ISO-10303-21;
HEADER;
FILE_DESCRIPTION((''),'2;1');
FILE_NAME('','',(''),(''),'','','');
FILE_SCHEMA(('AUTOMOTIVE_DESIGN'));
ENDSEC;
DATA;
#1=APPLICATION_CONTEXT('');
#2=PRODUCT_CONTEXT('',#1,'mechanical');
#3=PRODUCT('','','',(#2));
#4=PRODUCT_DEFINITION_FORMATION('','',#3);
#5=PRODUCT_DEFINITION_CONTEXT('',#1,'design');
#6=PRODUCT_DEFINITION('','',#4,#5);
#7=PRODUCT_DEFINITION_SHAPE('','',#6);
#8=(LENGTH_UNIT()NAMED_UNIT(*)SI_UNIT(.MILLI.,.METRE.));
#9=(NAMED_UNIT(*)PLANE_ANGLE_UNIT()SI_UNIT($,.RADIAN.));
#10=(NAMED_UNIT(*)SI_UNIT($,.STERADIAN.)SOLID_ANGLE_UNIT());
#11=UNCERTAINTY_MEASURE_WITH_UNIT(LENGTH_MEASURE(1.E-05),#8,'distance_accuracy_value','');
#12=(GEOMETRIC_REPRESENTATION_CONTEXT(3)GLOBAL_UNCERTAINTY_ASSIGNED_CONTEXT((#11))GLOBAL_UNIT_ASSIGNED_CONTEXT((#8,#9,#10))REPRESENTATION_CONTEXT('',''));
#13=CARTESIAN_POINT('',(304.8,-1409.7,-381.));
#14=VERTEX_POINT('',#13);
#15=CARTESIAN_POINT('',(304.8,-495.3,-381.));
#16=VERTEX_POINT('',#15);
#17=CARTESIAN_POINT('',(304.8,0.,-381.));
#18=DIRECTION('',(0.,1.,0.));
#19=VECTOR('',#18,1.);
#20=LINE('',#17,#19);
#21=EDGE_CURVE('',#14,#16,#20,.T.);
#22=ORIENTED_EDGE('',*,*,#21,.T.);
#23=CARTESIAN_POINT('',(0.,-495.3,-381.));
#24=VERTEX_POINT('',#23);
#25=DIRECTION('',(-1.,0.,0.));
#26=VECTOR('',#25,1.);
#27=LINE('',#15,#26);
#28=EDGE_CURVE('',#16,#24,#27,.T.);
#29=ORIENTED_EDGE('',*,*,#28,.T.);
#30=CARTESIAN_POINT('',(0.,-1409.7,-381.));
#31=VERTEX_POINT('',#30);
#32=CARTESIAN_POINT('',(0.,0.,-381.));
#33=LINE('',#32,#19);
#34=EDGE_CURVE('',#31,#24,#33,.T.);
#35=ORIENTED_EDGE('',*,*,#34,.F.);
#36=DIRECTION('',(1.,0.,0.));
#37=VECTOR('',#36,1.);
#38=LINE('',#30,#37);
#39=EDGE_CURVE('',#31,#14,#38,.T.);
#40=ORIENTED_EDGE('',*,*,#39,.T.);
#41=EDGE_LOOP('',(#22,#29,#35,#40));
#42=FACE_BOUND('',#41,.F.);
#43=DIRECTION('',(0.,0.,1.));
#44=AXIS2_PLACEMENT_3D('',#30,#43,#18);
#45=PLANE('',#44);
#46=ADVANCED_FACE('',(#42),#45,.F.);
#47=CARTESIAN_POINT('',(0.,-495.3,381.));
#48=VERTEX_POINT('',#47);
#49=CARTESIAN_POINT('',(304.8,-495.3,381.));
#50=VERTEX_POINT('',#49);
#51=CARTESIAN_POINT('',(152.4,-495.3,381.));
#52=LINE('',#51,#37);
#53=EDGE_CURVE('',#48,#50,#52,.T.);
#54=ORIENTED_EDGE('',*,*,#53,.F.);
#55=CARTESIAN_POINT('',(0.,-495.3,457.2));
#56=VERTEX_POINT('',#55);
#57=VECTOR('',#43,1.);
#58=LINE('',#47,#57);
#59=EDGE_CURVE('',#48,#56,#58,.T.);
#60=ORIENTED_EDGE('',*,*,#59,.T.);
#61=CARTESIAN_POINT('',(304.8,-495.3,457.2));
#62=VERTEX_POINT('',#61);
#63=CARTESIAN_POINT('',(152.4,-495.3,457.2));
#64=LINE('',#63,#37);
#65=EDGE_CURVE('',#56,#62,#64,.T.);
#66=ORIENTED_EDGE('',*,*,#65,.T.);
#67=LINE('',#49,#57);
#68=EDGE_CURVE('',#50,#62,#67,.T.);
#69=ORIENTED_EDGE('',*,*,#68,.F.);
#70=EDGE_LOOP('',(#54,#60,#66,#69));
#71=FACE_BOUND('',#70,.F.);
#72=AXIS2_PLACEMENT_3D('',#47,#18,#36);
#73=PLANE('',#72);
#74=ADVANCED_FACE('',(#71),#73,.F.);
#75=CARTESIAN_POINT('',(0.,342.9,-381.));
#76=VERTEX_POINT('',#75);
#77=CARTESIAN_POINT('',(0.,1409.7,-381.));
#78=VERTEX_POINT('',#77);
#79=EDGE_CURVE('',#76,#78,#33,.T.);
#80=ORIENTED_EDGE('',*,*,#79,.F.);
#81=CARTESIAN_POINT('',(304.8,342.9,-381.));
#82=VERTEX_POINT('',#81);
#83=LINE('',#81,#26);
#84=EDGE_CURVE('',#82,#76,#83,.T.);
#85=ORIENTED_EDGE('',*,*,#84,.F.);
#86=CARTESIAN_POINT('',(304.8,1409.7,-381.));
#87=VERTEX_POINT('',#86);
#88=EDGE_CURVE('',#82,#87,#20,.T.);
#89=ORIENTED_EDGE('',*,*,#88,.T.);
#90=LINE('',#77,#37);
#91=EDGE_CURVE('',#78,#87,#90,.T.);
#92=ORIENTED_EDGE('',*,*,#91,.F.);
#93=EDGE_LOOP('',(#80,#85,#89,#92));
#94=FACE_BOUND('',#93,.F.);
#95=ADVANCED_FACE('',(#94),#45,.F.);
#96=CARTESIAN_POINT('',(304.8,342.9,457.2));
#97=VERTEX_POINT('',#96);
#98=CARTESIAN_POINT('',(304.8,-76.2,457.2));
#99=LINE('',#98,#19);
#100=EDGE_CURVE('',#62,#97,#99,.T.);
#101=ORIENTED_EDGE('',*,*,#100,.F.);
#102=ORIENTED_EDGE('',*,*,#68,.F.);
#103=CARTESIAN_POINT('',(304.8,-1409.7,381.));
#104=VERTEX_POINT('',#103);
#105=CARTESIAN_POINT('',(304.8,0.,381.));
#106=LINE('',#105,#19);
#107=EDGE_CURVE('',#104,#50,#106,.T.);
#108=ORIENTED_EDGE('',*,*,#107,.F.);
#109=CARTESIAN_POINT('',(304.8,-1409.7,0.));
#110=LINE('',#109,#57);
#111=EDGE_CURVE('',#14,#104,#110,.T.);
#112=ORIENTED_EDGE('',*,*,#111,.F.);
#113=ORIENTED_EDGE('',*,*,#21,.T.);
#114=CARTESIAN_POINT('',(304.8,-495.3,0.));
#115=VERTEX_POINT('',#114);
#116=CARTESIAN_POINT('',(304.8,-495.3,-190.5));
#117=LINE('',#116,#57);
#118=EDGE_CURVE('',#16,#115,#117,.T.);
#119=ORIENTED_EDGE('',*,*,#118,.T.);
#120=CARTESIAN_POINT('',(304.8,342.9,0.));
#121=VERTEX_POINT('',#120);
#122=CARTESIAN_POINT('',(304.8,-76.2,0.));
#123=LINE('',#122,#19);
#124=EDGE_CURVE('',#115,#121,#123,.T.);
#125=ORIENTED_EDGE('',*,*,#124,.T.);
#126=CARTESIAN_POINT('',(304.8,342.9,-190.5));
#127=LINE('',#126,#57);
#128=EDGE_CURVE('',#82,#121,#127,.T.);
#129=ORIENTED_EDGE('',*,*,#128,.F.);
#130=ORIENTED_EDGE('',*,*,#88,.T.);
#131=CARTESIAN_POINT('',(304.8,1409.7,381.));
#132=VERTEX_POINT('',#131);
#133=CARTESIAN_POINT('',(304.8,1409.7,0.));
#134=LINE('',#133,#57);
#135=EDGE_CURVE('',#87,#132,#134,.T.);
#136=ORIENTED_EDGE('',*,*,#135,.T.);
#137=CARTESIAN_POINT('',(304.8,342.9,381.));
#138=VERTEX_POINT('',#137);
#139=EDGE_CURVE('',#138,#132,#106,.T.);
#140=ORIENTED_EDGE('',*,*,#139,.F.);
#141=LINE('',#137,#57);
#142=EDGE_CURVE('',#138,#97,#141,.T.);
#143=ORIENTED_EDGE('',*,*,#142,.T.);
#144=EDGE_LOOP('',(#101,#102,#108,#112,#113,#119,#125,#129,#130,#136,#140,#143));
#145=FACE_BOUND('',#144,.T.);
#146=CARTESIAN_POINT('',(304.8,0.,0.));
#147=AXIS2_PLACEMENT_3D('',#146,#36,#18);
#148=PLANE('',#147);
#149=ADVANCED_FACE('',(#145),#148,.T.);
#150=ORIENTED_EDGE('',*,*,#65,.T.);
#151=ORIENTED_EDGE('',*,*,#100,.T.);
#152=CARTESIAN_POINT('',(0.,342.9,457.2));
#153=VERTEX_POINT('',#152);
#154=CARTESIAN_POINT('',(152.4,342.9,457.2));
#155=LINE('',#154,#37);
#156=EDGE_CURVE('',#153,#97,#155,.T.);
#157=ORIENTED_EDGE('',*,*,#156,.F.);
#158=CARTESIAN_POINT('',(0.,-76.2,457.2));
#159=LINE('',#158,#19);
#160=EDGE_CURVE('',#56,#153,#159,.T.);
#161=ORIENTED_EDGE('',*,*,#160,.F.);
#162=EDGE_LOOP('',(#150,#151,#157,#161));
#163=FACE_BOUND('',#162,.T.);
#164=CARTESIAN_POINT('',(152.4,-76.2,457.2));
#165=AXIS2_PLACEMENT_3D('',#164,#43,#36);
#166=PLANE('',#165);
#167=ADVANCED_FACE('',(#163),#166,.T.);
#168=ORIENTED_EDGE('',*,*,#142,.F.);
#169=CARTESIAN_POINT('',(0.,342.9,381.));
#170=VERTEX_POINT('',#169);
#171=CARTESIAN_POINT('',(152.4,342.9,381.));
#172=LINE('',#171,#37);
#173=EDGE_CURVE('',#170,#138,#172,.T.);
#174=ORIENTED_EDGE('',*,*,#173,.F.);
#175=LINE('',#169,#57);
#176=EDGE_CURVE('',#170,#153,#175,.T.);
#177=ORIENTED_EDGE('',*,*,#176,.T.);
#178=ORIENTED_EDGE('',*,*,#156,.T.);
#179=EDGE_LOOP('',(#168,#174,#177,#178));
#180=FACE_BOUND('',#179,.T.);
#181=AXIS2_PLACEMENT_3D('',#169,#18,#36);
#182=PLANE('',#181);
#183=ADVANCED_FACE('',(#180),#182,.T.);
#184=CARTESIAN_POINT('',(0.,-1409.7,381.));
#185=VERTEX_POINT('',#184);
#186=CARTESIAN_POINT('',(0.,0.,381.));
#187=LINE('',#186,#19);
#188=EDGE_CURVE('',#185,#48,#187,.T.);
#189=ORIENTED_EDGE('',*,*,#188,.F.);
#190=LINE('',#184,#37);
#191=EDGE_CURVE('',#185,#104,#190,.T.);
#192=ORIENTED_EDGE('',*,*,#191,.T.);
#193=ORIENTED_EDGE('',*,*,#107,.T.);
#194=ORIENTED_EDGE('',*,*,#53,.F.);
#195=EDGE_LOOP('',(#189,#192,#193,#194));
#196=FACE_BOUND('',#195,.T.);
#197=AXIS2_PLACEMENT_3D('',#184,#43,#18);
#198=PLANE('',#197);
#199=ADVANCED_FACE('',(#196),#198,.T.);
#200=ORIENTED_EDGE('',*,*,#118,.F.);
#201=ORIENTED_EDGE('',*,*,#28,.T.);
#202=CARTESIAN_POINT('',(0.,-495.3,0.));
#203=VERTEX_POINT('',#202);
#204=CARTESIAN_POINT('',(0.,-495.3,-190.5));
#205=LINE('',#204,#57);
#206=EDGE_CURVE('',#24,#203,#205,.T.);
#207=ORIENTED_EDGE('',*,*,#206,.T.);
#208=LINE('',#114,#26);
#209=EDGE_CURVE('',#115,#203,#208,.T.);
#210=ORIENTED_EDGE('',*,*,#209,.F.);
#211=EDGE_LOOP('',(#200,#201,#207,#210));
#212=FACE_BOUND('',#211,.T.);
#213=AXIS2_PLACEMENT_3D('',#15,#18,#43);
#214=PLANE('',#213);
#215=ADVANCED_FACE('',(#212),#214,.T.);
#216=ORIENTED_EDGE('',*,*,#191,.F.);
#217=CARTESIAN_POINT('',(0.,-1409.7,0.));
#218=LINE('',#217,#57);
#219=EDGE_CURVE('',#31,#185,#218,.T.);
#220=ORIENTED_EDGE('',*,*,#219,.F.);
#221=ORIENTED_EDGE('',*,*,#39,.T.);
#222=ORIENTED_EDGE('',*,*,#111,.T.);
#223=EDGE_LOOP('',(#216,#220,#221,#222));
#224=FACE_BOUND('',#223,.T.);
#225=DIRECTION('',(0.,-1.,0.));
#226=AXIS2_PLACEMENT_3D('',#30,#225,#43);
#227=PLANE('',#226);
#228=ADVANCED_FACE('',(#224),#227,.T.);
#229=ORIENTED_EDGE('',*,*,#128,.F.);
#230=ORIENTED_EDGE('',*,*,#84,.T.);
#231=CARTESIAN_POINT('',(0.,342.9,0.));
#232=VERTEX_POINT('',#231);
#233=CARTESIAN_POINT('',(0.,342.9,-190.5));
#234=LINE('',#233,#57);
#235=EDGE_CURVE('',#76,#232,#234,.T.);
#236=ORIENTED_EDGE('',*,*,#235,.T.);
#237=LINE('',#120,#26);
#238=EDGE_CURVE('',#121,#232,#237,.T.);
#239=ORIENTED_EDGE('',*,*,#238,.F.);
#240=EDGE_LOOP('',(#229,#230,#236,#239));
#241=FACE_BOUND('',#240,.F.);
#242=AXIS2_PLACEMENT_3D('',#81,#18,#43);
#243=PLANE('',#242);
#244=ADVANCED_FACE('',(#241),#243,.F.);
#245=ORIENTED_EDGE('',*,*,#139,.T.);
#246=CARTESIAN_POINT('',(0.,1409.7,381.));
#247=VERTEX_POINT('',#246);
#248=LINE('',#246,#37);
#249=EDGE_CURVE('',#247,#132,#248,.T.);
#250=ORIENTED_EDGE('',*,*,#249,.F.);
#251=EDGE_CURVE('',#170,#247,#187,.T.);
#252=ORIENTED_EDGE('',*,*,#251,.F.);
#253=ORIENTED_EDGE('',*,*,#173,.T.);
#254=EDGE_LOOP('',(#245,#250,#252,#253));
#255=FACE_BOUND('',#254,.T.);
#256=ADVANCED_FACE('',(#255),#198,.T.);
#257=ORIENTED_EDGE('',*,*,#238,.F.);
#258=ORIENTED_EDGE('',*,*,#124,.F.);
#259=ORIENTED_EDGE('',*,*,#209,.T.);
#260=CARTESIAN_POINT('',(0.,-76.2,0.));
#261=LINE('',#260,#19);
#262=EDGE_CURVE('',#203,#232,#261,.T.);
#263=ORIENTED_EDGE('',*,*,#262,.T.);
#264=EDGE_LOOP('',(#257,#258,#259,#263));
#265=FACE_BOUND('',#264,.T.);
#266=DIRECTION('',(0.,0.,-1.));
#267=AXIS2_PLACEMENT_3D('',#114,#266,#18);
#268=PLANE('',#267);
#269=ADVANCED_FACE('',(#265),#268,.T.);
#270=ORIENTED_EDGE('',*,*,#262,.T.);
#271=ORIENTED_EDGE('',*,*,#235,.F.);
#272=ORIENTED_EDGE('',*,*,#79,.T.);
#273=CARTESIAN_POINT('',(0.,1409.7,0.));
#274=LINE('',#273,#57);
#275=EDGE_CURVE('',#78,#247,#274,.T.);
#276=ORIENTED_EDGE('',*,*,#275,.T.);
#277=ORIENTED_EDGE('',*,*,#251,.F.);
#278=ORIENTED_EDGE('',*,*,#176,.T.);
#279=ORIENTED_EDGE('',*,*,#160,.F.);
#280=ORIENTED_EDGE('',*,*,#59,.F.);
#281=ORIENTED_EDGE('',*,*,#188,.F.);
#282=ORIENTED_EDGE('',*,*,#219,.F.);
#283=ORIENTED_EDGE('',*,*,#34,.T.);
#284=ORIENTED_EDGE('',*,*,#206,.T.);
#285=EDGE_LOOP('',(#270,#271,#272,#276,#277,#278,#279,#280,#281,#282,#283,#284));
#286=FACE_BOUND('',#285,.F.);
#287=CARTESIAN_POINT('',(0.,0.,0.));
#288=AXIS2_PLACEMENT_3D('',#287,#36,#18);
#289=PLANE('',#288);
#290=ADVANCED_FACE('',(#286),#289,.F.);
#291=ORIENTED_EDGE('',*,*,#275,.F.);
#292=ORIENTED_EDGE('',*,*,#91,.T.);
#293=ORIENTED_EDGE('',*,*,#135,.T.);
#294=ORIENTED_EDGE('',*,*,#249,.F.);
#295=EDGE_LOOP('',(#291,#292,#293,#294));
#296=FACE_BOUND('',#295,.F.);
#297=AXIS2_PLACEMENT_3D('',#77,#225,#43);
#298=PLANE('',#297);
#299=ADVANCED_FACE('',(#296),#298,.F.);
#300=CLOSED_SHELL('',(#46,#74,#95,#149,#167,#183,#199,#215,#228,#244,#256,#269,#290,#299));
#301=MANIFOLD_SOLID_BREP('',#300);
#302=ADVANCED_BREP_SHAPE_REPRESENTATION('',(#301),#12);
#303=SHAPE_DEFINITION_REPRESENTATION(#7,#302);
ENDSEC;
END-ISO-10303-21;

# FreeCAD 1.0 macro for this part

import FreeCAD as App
import Part
import Sketcher
from FreeCAD import Vector
Q = App.Units.Quantity


def add_polygon(sketch, points):
    """Adds a closed chain of lines whose ends are joined by coincident constraints."""
    first, n = sketch.GeometryCount, len(points)
    for a, b in zip(points, points[1:] + points[:1]):
        sketch.addGeometry(Part.LineSegment(App.Vector(*a, 0), App.Vector(*b, 0)), False)
    for i in range(n):
        sketch.addConstraint(Sketcher.Constraint("Coincident", first + i, 2, first + (i + 1) % n, 1))

doc = App.newDocument("Part")
body = doc.addObject("PartDesign::Body", "Body")

# Sketch on YZ plane
sketch1 = body.newObject("Sketcher::SketchObject", "Sketch")
sketch1.AttachmentSupport = (doc.getObject("YZ_Plane"), [""])
sketch1.MapMode = "FlatFace"
add_polygon(sketch1, [(-1410, 381), (-1410, -381), (1410, -381), (1410, 381)])  # lines 0-3
sketch1.addConstraint(Sketcher.Constraint("Vertical", 0))
sketch1.addConstraint(Sketcher.Constraint("Horizontal", 1))
sketch1.addConstraint(Sketcher.Constraint("Vertical", 2))
sketch1.addConstraint(Sketcher.Constraint("Horizontal", 3))
sketch1.addConstraint(Sketcher.Constraint("Symmetric", 0, 2, 2, 2, -1, 1))
sketch1.addConstraint(Sketcher.Constraint("DistanceX", 1, 1, 1, 2, Q("111 in")))
sketch1.addConstraint(Sketcher.Constraint("DistanceY", 0, 2, 0, 1, Q("30 in")))
pad1 = body.newObject("PartDesign::Pad", "Pad")
pad1.Profile = sketch1
pad1.Length = Q("12 in")

# Sketch on YZ plane
sketch2 = body.newObject("Sketcher::SketchObject", "Sketch001")
sketch2.AttachmentSupport = (doc.getObject("YZ_Plane"), [""])
sketch2.MapMode = "FlatFace"
sketch2.AttachmentOffset = App.Placement(Vector(0, 0, 12 * 25.4), App.Rotation())
add_polygon(sketch2, [(-495, 0), (-495, -381), (343, -381), (343, 0)])  # lines 0-3
sketch2.addConstraint(Sketcher.Constraint("Vertical", 0))
sketch2.addConstraint(Sketcher.Constraint("Horizontal", 1))
sketch2.addConstraint(Sketcher.Constraint("Vertical", 2))
sketch2.addConstraint(Sketcher.Constraint("Horizontal", 3))
sketch2.addConstraint(Sketcher.Constraint("PointOnObject", 2, 2, -1))
sketch2.addConstraint(Sketcher.Constraint("DistanceX", 1, 1, 1, 2, Q("33 in")))
sketch2.addConstraint(Sketcher.Constraint("DistanceY", 0, 2, 0, 1, Q("15 in")))
sketch2.addConstraint(Sketcher.Constraint("DistanceX", 0, 2, -1, 1, Q("19.5 in")))
pocket1 = body.newObject("PartDesign::Pocket", "Pocket")
pocket1.Profile = sketch2
pocket1.Length = Q("12 in")

# Sketch on XY plane
sketch3 = body.newObject("Sketcher::SketchObject", "Sketch002")
sketch3.AttachmentSupport = (doc.getObject("XY_Plane"), [""])
sketch3.MapMode = "FlatFace"
sketch3.AttachmentOffset = App.Placement(Vector(0, 0, 15 * 25.4), App.Rotation())
add_polygon(sketch3, [(0, 343), (0, -495), (305, -495), (305, 343)])  # lines 0-3
sketch3.addConstraint(Sketcher.Constraint("Vertical", 0))
sketch3.addConstraint(Sketcher.Constraint("Horizontal", 1))
sketch3.addConstraint(Sketcher.Constraint("Vertical", 2))
sketch3.addConstraint(Sketcher.Constraint("Horizontal", 3))
sketch3.addConstraint(Sketcher.Constraint("PointOnObject", 0, 2, -2))
sketch3.addConstraint(Sketcher.Constraint("DistanceX", 1, 1, 1, 2, Q("12 in")))
sketch3.addConstraint(Sketcher.Constraint("DistanceY", 0, 2, 0, 1, Q("33 in")))
sketch3.addConstraint(Sketcher.Constraint("DistanceY", 0, 2, -1, 1, Q("19.5 in")))
pad2 = body.newObject("PartDesign::Pad", "Pad001")
pad2.Profile = sketch3
pad2.Length = Q("3 in")

doc.recompute()
